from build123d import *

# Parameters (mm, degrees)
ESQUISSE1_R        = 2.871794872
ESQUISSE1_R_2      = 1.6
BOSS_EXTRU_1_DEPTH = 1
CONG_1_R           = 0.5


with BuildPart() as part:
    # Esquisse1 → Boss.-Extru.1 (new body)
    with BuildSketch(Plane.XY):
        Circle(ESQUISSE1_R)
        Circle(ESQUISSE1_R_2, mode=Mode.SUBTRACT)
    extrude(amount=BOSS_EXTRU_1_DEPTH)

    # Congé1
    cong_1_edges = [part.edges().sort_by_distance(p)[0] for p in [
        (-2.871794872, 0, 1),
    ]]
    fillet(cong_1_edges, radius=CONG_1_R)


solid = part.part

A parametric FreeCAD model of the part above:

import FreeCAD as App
import Part
import Sketcher
from FreeCAD import Vector
Q = App.Units.Quantity


def edges_at(feature, points):
    """Names of the edges that pass closest to the given points."""
    edges = feature.Shape.Edges
    near = lambda p: min(range(len(edges)), key=lambda i: edges[i].distToShape(Part.Vertex(*p))[0])
    return sorted({f"Edge{near(p) + 1}" for p in points})

doc = App.newDocument("Part")
body = doc.addObject("PartDesign::Body", "Body")

# Sketch on XY plane
sketch1 = body.newObject("Sketcher::SketchObject", "Sketch")
sketch1.AttachmentSupport = (doc.getObject("XY_Plane"), [""])
sketch1.MapMode = "FlatFace"
sketch1.addGeometry(Part.Circle(Vector(0, 0, 0), Vector(0, 0, 1), 2.9), False)
sketch1.addGeometry(Part.Circle(Vector(0, 0, 0), Vector(0, 0, 1), 1.6), False)
sketch1.addConstraint(Sketcher.Constraint("Coincident", 0, 3, -1, 1))
sketch1.addConstraint(Sketcher.Constraint("Coincident", 1, 3, -1, 1))
sketch1.addConstraint(Sketcher.Constraint("Diameter", 1, Q("3.2 mm")))
sketch1.addConstraint(Sketcher.Constraint("Diameter", 0, Q("5.74359 mm")))
pad1 = body.newObject("PartDesign::Pad", "Pad")
pad1.Profile = sketch1
pad1.Length = 1
doc.recompute()

fillet = body.newObject("PartDesign::Fillet", "Fillet")
fillet.Base = (pad1, edges_at(pad1, [(-2.872, 0, 1)]))
fillet.Radius = 0.5

doc.recompute()
